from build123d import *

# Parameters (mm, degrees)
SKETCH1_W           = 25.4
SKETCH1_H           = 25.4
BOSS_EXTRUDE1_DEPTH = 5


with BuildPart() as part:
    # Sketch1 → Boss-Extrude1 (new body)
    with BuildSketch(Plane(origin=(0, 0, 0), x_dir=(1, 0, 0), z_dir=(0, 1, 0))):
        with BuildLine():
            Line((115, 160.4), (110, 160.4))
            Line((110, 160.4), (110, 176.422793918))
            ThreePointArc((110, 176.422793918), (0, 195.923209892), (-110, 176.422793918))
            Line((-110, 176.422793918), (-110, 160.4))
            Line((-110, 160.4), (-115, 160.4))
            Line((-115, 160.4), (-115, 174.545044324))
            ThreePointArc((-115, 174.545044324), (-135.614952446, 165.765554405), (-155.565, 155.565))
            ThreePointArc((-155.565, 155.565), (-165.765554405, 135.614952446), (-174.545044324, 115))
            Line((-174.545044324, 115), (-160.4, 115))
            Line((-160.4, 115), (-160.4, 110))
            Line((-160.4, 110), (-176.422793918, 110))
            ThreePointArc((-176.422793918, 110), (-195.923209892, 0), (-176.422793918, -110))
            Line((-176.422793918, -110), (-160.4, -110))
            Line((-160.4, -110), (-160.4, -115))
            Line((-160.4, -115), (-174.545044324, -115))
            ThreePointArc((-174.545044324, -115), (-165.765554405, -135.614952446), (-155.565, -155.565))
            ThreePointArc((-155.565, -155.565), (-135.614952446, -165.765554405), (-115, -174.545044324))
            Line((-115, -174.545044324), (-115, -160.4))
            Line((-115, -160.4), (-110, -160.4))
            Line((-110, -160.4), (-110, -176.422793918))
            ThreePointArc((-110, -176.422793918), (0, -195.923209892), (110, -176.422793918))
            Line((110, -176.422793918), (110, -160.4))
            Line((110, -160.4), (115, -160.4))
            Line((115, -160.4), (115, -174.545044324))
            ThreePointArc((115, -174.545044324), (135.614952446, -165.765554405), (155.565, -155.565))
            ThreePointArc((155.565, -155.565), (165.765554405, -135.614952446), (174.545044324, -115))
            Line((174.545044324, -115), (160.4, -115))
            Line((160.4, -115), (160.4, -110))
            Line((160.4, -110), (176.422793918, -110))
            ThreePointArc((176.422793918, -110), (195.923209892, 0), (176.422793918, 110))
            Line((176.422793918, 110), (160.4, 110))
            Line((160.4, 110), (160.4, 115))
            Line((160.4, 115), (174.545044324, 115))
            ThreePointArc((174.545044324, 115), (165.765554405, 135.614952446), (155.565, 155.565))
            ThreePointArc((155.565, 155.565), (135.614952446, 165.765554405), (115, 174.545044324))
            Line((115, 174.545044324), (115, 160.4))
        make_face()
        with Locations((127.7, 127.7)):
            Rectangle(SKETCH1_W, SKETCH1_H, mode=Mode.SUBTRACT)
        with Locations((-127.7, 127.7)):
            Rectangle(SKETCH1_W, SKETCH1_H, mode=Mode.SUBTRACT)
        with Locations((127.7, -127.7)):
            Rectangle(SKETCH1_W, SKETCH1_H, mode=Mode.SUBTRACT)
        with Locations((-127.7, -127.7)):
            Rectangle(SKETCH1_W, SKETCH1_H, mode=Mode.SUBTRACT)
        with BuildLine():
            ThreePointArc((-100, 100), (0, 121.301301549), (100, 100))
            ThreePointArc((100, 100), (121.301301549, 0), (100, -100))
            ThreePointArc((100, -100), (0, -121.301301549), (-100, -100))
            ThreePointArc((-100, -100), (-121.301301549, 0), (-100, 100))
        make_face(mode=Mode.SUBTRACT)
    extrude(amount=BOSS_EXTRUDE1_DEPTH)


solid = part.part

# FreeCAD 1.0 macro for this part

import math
import FreeCAD as App
import Part
import Sketcher

doc = App.newDocument("Part")
body = doc.addObject("PartDesign::Body", "Body")

# Sketch on XZ plane
sketch1 = doc.addObject("Sketcher::SketchObject", "Sketch")
body.addObject(sketch1)
sketch1.AttachmentSupport = (doc.XZ_Plane, [""])
sketch1.MapMode = "FlatFace"
sketch1.addGeometry([
    Part.LineSegment(App.Vector(115, -160, 0), App.Vector(110, -160, 0)),  # 0
    Part.LineSegment(App.Vector(110, -160, 0), App.Vector(110, -176, 0)),  # 1
    Part.ArcOfCircle(Part.Circle(App.Vector(0, 124, 0), App.Vector(0, 0, 1), 320), math.radians(-110), math.radians(-70)),  # 2
    Part.LineSegment(App.Vector(-110, -176, 0), App.Vector(-110, -160, 0)),  # 3
    Part.LineSegment(App.Vector(-110, -160, 0), App.Vector(-115, -160, 0)),  # 4
    Part.LineSegment(App.Vector(-115, -160, 0), App.Vector(-115, -175, 0)),  # 5
    Part.ArcOfCircle(Part.Circle(App.Vector(0, 124, 0), App.Vector(0, 0, 1), 320), math.radians(-119.09), math.radians(-111.06)),  # 6
    Part.ArcOfCircle(Part.Circle(App.Vector(124, 0, 0), App.Vector(0, 0, 1), 320), math.radians(-158.94), math.radians(-150.91)),  # 7
    Part.LineSegment(App.Vector(-175, -115, 0), App.Vector(-160, -115, 0)),  # 8
    Part.LineSegment(App.Vector(-160, -115, 0), App.Vector(-160, -110, 0)),  # 9
    Part.LineSegment(App.Vector(-160, -110, 0), App.Vector(-176, -110, 0)),  # 10
    Part.ArcOfCircle(Part.Circle(App.Vector(124, 0, 0), App.Vector(0, 0, 1), 320), math.radians(160), math.radians(200)),  # 11
    Part.LineSegment(App.Vector(-176, 110, 0), App.Vector(-160, 110, 0)),  # 12
    Part.LineSegment(App.Vector(-160, 110, 0), App.Vector(-160, 115, 0)),  # 13
    Part.LineSegment(App.Vector(-160, 115, 0), App.Vector(-175, 115, 0)),  # 14
    Part.ArcOfCircle(Part.Circle(App.Vector(124, 0, 0), App.Vector(0, 0, 1), 320), math.radians(150.91), math.radians(158.94)),  # 15
    Part.ArcOfCircle(Part.Circle(App.Vector(0, -124, 0), App.Vector(0, 0, 1), 320), math.radians(111.06), math.radians(119.09)),  # 16
    Part.LineSegment(App.Vector(-115, 175, 0), App.Vector(-115, 160, 0)),  # 17
    Part.LineSegment(App.Vector(-115, 160, 0), App.Vector(-110, 160, 0)),  # 18
    Part.LineSegment(App.Vector(-110, 160, 0), App.Vector(-110, 176, 0)),  # 19
    Part.ArcOfCircle(Part.Circle(App.Vector(0, -124, 0), App.Vector(0, 0, 1), 320), math.radians(70), math.radians(110)),  # 20
    Part.LineSegment(App.Vector(110, 176, 0), App.Vector(110, 160, 0)),  # 21
    Part.LineSegment(App.Vector(110, 160, 0), App.Vector(115, 160, 0)),  # 22
    Part.LineSegment(App.Vector(115, 160, 0), App.Vector(115, 175, 0)),  # 23
    Part.ArcOfCircle(Part.Circle(App.Vector(0, -124, 0), App.Vector(0, 0, 1), 320), math.radians(60.91), math.radians(68.94)),  # 24
    Part.ArcOfCircle(Part.Circle(App.Vector(-124, 0, 0), App.Vector(0, 0, 1), 320), math.radians(21.06), math.radians(29.09)),  # 25
    Part.LineSegment(App.Vector(175, 115, 0), App.Vector(160, 115, 0)),  # 26
    Part.LineSegment(App.Vector(160, 115, 0), App.Vector(160, 110, 0)),  # 27
    Part.LineSegment(App.Vector(160, 110, 0), App.Vector(176, 110, 0)),  # 28
    Part.ArcOfCircle(Part.Circle(App.Vector(-124, 0, 0), App.Vector(0, 0, 1), 320), math.radians(-20), math.radians(20)),  # 29
    Part.LineSegment(App.Vector(176, -110, 0), App.Vector(160, -110, 0)),  # 30
    Part.LineSegment(App.Vector(160, -110, 0), App.Vector(160, -115, 0)),  # 31
    Part.LineSegment(App.Vector(160, -115, 0), App.Vector(175, -115, 0)),  # 32
    Part.ArcOfCircle(Part.Circle(App.Vector(-124, 0, 0), App.Vector(0, 0, 1), 320), math.radians(-29.09), math.radians(-21.06)),  # 33
    Part.ArcOfCircle(Part.Circle(App.Vector(0, 124, 0), App.Vector(0, 0, 1), 320), math.radians(-68.94), math.radians(-60.91)),  # 34
    Part.LineSegment(App.Vector(115, -175, 0), App.Vector(115, -160, 0)),  # 35
    Part.LineSegment(App.Vector(-115, 140, 0), App.Vector(-140, 140, 0)),  # 36
    Part.LineSegment(App.Vector(-140, 140, 0), App.Vector(-140, 115, 0)),  # 37
    Part.LineSegment(App.Vector(-140, 115, 0), App.Vector(-115, 115, 0)),  # 38
    Part.LineSegment(App.Vector(-115, 115, 0), App.Vector(-115, 140, 0)),  # 39
    Part.LineSegment(App.Vector(140, 140, 0), App.Vector(115, 140, 0)),  # 40
    Part.LineSegment(App.Vector(115, 140, 0), App.Vector(115, 115, 0)),  # 41
    Part.LineSegment(App.Vector(115, 115, 0), App.Vector(140, 115, 0)),  # 42
    Part.LineSegment(App.Vector(140, 115, 0), App.Vector(140, 140, 0)),  # 43
    Part.LineSegment(App.Vector(-115, -115, 0), App.Vector(-140, -115, 0)),  # 44
    Part.LineSegment(App.Vector(-140, -115, 0), App.Vector(-140, -140, 0)),  # 45
    Part.LineSegment(App.Vector(-140, -140, 0), App.Vector(-115, -140, 0)),  # 46
    Part.LineSegment(App.Vector(-115, -140, 0), App.Vector(-115, -115, 0)),  # 47
    Part.ArcOfCircle(Part.Circle(App.Vector(124, 0, 0), App.Vector(0, 0, 1), 245), math.radians(156), math.radians(204)),  # 48
    Part.ArcOfCircle(Part.Circle(App.Vector(0, 124, 0), App.Vector(0, 0, 1), 245), math.radians(-114), math.radians(-66)),  # 49
    Part.ArcOfCircle(Part.Circle(App.Vector(-124, 0, 0), App.Vector(0, 0, 1), 245), math.radians(-24), math.radians(24)),  # 50
    Part.ArcOfCircle(Part.Circle(App.Vector(0, -124, 0), App.Vector(0, 0, 1), 245), math.radians(66), math.radians(114)),  # 51
    Part.LineSegment(App.Vector(140, -115, 0), App.Vector(115, -115, 0)),  # 52
    Part.LineSegment(App.Vector(115, -115, 0), App.Vector(115, -140, 0)),  # 53
    Part.LineSegment(App.Vector(115, -140, 0), App.Vector(140, -140, 0)),  # 54
    Part.LineSegment(App.Vector(140, -140, 0), App.Vector(140, -115, 0)),  # 55
], False)
sketch1.addConstraint([
    Sketcher.Constraint("Coincident", 0, 2, 1, 1),
    Sketcher.Constraint("Coincident", 1, 2, 2, 2),
    Sketcher.Constraint("Coincident", 2, 1, 3, 1),
    Sketcher.Constraint("Coincident", 3, 2, 4, 1),
    Sketcher.Constraint("Coincident", 4, 2, 5, 1),
    Sketcher.Constraint("Coincident", 5, 2, 6, 2),
    Sketcher.Constraint("Coincident", 6, 1, 7, 2),
    Sketcher.Constraint("Coincident", 7, 1, 8, 1),
    Sketcher.Constraint("Coincident", 8, 2, 9, 1),
    Sketcher.Constraint("Coincident", 9, 2, 10, 1),
    Sketcher.Constraint("Coincident", 10, 2, 11, 2),
    Sketcher.Constraint("Coincident", 11, 1, 12, 1),
    Sketcher.Constraint("Coincident", 12, 2, 13, 1),
    Sketcher.Constraint("Coincident", 13, 2, 14, 1),
    Sketcher.Constraint("Coincident", 14, 2, 15, 2),
    Sketcher.Constraint("Coincident", 15, 1, 16, 2),
    Sketcher.Constraint("Coincident", 16, 1, 17, 1),
    Sketcher.Constraint("Coincident", 17, 2, 18, 1),
    Sketcher.Constraint("Coincident", 18, 2, 19, 1),
    Sketcher.Constraint("Coincident", 19, 2, 20, 2),
    Sketcher.Constraint("Coincident", 20, 1, 21, 1),
    Sketcher.Constraint("Coincident", 21, 2, 22, 1),
    Sketcher.Constraint("Coincident", 22, 2, 23, 1),
    Sketcher.Constraint("Coincident", 23, 2, 24, 2),
    Sketcher.Constraint("Coincident", 24, 1, 25, 2),
    Sketcher.Constraint("Coincident", 25, 1, 26, 1),
    Sketcher.Constraint("Coincident", 26, 2, 27, 1),
    Sketcher.Constraint("Coincident", 27, 2, 28, 1),
    Sketcher.Constraint("Coincident", 28, 2, 29, 2),
    Sketcher.Constraint("Coincident", 29, 1, 30, 1),
    Sketcher.Constraint("Coincident", 30, 2, 31, 1),
    Sketcher.Constraint("Coincident", 31, 2, 32, 1),
    Sketcher.Constraint("Coincident", 32, 2, 33, 2),
    Sketcher.Constraint("Coincident", 33, 1, 34, 2),
    Sketcher.Constraint("Coincident", 34, 1, 35, 1),
    Sketcher.Constraint("Coincident", 35, 2, 0, 1),
    Sketcher.Constraint("Coincident", 36, 2, 37, 1),
    Sketcher.Constraint("Coincident", 37, 2, 38, 1),
    Sketcher.Constraint("Coincident", 38, 2, 39, 1),
    Sketcher.Constraint("Coincident", 39, 2, 36, 1),
    Sketcher.Constraint("Coincident", 40, 2, 41, 1),
    Sketcher.Constraint("Coincident", 41, 2, 42, 1),
    Sketcher.Constraint("Coincident", 42, 2, 43, 1),
    Sketcher.Constraint("Coincident", 43, 2, 40, 1),
    Sketcher.Constraint("Coincident", 44, 2, 45, 1),
    Sketcher.Constraint("Coincident", 45, 2, 46, 1),
    Sketcher.Constraint("Coincident", 46, 2, 47, 1),
    Sketcher.Constraint("Coincident", 47, 2, 44, 1),
    Sketcher.Constraint("Coincident", 48, 2, 49, 1),
    Sketcher.Constraint("Coincident", 49, 2, 50, 1),
    Sketcher.Constraint("Coincident", 50, 2, 51, 1),
    Sketcher.Constraint("Coincident", 51, 2, 48, 1),
    Sketcher.Constraint("Coincident", 52, 2, 53, 1),
    Sketcher.Constraint("Coincident", 53, 2, 54, 1),
    Sketcher.Constraint("Coincident", 54, 2, 55, 1),
    Sketcher.Constraint("Coincident", 55, 2, 52, 1),
    Sketcher.Constraint("Horizontal", 0),
    Sketcher.Constraint("Vertical", 1),
    Sketcher.Constraint("Vertical", 3),
    Sketcher.Constraint("Horizontal", 4),
    Sketcher.Constraint("Vertical", 5),
    Sketcher.Constraint("Horizontal", 8),
    Sketcher.Constraint("Vertical", 9),
    Sketcher.Constraint("Horizontal", 10),
    Sketcher.Constraint("Horizontal", 12),
    Sketcher.Constraint("Vertical", 13),
    Sketcher.Constraint("Horizontal", 14),
    Sketcher.Constraint("Vertical", 17),
    Sketcher.Constraint("Horizontal", 18),
    Sketcher.Constraint("Vertical", 19),
    Sketcher.Constraint("Vertical", 21),
    Sketcher.Constraint("Horizontal", 22),
    Sketcher.Constraint("Vertical", 23),
    Sketcher.Constraint("Horizontal", 26),
    Sketcher.Constraint("Vertical", 27),
    Sketcher.Constraint("Horizontal", 28),
    Sketcher.Constraint("Horizontal", 30),
    Sketcher.Constraint("Vertical", 31),
    Sketcher.Constraint("Horizontal", 32),
    Sketcher.Constraint("Vertical", 35),
    Sketcher.Constraint("Horizontal", 36),
    Sketcher.Constraint("Vertical", 37),
    Sketcher.Constraint("Horizontal", 38),
    Sketcher.Constraint("Vertical", 39),
    Sketcher.Constraint("Horizontal", 40),
    Sketcher.Constraint("Vertical", 41),
    Sketcher.Constraint("Horizontal", 42),
    Sketcher.Constraint("Vertical", 43),
    Sketcher.Constraint("Horizontal", 44),
    Sketcher.Constraint("Vertical", 45),
    Sketcher.Constraint("Horizontal", 46),
    Sketcher.Constraint("Vertical", 47),
    Sketcher.Constraint("Horizontal", 52),
    Sketcher.Constraint("Vertical", 53),
    Sketcher.Constraint("Horizontal", 54),
    Sketcher.Constraint("Vertical", 55),
    Sketcher.Constraint("Coincident", 6, 3, 2, 3),
    Sketcher.Constraint("Coincident", 11, 3, 7, 3),
    Sketcher.Constraint("Coincident", 15, 3, 7, 3),
    Sketcher.Constraint("Coincident", 20, 3, 16, 3),
    Sketcher.Constraint("Coincident", 24, 3, 16, 3),
    Sketcher.Constraint("Coincident", 29, 3, 25, 3),
    Sketcher.Constraint("Coincident", 33, 3, 25, 3),
    Sketcher.Constraint("Coincident", 34, 3, 2, 3),
    Sketcher.Constraint("Coincident", 48, 3, 7, 3),
    Sketcher.Constraint("Coincident", 49, 3, 2, 3),
    Sketcher.Constraint("Coincident", 50, 3, 25, 3),
    Sketcher.Constraint("Coincident", 51, 3, 16, 3),
    Sketcher.Constraint("Equal", 2, 6),
    Sketcher.Constraint("Equal", 6, 7),
    Sketcher.Constraint("Equal", 7, 11),
    Sketcher.Constraint("Equal", 11, 15),
    Sketcher.Constraint("Equal", 15, 16),
    Sketcher.Constraint("Equal", 16, 20),
    Sketcher.Constraint("Equal", 20, 24),
    Sketcher.Constraint("Equal", 24, 25),
    Sketcher.Constraint("Equal", 25, 29),
    Sketcher.Constraint("Equal", 29, 33),
    Sketcher.Constraint("Equal", 33, 34),
    Sketcher.Constraint("Equal", 48, 49),
    Sketcher.Constraint("Equal", 49, 50),
    Sketcher.Constraint("Equal", 50, 51),
    Sketcher.Constraint("Symmetric", 2, 3, 16, 3, -1, 1),
    Sketcher.Constraint("Symmetric", 7, 3, 25, 3, -1, 1),
    Sketcher.Constraint("Symmetric", 0, 2, 18, 2, -1, 1),
    Sketcher.Constraint("Symmetric", 3, 2, 21, 2, -1, 1),
    Sketcher.Constraint("Symmetric", 8, 2, 26, 2, -1, 1),
    Sketcher.Constraint("Symmetric", 12, 2, 30, 2, -1, 1),
    Sketcher.Constraint("Symmetric", 42, 2, 44, 2, -1, 1),
    Sketcher.Constraint("Symmetric", 40, 2, 46, 2, -1, 1),
    Sketcher.Constraint("Symmetric", 38, 2, 52, 2, -1, 1),
    Sketcher.Constraint("Symmetric", 36, 2, 54, 2, -1, 1),
    Sketcher.Constraint("Symmetric", 0, 2, 3, 2, -2),
    Sketcher.Constraint("Symmetric", 16, 1, 23, 2, -2),
    Sketcher.Constraint("Symmetric", 13, 2, 26, 2, -2),
    Sketcher.Constraint("Symmetric", 39, 2, 40, 2, -2),
    Sketcher.Constraint("Symmetric", 37, 2, 42, 2, -2),
    Sketcher.Constraint("PointOnObject", 7, 3, -1),
    Sketcher.Constraint("Horizontal", 12, 2, 27, 2),
    Sketcher.Constraint("Horizontal", 10, 2, 29, 1),
    Sketcher.Constraint("Horizontal", 8, 2, 31, 2),
    Sketcher.Constraint("Horizontal", 5, 2, 34, 1),
    Sketcher.Constraint("Horizontal", 26, 2, 37, 2),
    Sketcher.Constraint("Vertical", 17, 2, 38, 2),
    Sketcher.Constraint("Vertical", 35, 2, 40, 2),
    Sketcher.Constraint("Equal", 30, 1),
    Sketcher.Constraint("Equal", 32, 5),
    Sketcher.Constraint("Equal", 22, 9),
    Sketcher.Constraint("Equal", 54, 37),
    Sketcher.Constraint("Radius", 2, 320.0),
    Sketcher.Constraint("DistanceX", 0, 2, 0, 1, 5.0),
    Sketcher.Constraint("DistanceX", 36, 2, 36, 1, 25.4),
    Sketcher.Constraint("DistanceX", -1, 1, 0, 2, 110.0),
    Sketcher.Constraint("DistanceX", 48, 2, -1, 1, 100.0),
    Sketcher.Constraint("DistanceY", 49, 2, -1, 1, 100.0),
    Sketcher.Constraint("DistanceY", 0, 2, -1, 1, 160.4),
    Sketcher.Constraint("Radius", 48, 245.378092),
])
pad1 = doc.addObject("PartDesign::Pad", "Pad")
body.addObject(pad1)
pad1.Profile = sketch1
pad1.Length = 5
pad1.Reversed = True

doc.recompute()
